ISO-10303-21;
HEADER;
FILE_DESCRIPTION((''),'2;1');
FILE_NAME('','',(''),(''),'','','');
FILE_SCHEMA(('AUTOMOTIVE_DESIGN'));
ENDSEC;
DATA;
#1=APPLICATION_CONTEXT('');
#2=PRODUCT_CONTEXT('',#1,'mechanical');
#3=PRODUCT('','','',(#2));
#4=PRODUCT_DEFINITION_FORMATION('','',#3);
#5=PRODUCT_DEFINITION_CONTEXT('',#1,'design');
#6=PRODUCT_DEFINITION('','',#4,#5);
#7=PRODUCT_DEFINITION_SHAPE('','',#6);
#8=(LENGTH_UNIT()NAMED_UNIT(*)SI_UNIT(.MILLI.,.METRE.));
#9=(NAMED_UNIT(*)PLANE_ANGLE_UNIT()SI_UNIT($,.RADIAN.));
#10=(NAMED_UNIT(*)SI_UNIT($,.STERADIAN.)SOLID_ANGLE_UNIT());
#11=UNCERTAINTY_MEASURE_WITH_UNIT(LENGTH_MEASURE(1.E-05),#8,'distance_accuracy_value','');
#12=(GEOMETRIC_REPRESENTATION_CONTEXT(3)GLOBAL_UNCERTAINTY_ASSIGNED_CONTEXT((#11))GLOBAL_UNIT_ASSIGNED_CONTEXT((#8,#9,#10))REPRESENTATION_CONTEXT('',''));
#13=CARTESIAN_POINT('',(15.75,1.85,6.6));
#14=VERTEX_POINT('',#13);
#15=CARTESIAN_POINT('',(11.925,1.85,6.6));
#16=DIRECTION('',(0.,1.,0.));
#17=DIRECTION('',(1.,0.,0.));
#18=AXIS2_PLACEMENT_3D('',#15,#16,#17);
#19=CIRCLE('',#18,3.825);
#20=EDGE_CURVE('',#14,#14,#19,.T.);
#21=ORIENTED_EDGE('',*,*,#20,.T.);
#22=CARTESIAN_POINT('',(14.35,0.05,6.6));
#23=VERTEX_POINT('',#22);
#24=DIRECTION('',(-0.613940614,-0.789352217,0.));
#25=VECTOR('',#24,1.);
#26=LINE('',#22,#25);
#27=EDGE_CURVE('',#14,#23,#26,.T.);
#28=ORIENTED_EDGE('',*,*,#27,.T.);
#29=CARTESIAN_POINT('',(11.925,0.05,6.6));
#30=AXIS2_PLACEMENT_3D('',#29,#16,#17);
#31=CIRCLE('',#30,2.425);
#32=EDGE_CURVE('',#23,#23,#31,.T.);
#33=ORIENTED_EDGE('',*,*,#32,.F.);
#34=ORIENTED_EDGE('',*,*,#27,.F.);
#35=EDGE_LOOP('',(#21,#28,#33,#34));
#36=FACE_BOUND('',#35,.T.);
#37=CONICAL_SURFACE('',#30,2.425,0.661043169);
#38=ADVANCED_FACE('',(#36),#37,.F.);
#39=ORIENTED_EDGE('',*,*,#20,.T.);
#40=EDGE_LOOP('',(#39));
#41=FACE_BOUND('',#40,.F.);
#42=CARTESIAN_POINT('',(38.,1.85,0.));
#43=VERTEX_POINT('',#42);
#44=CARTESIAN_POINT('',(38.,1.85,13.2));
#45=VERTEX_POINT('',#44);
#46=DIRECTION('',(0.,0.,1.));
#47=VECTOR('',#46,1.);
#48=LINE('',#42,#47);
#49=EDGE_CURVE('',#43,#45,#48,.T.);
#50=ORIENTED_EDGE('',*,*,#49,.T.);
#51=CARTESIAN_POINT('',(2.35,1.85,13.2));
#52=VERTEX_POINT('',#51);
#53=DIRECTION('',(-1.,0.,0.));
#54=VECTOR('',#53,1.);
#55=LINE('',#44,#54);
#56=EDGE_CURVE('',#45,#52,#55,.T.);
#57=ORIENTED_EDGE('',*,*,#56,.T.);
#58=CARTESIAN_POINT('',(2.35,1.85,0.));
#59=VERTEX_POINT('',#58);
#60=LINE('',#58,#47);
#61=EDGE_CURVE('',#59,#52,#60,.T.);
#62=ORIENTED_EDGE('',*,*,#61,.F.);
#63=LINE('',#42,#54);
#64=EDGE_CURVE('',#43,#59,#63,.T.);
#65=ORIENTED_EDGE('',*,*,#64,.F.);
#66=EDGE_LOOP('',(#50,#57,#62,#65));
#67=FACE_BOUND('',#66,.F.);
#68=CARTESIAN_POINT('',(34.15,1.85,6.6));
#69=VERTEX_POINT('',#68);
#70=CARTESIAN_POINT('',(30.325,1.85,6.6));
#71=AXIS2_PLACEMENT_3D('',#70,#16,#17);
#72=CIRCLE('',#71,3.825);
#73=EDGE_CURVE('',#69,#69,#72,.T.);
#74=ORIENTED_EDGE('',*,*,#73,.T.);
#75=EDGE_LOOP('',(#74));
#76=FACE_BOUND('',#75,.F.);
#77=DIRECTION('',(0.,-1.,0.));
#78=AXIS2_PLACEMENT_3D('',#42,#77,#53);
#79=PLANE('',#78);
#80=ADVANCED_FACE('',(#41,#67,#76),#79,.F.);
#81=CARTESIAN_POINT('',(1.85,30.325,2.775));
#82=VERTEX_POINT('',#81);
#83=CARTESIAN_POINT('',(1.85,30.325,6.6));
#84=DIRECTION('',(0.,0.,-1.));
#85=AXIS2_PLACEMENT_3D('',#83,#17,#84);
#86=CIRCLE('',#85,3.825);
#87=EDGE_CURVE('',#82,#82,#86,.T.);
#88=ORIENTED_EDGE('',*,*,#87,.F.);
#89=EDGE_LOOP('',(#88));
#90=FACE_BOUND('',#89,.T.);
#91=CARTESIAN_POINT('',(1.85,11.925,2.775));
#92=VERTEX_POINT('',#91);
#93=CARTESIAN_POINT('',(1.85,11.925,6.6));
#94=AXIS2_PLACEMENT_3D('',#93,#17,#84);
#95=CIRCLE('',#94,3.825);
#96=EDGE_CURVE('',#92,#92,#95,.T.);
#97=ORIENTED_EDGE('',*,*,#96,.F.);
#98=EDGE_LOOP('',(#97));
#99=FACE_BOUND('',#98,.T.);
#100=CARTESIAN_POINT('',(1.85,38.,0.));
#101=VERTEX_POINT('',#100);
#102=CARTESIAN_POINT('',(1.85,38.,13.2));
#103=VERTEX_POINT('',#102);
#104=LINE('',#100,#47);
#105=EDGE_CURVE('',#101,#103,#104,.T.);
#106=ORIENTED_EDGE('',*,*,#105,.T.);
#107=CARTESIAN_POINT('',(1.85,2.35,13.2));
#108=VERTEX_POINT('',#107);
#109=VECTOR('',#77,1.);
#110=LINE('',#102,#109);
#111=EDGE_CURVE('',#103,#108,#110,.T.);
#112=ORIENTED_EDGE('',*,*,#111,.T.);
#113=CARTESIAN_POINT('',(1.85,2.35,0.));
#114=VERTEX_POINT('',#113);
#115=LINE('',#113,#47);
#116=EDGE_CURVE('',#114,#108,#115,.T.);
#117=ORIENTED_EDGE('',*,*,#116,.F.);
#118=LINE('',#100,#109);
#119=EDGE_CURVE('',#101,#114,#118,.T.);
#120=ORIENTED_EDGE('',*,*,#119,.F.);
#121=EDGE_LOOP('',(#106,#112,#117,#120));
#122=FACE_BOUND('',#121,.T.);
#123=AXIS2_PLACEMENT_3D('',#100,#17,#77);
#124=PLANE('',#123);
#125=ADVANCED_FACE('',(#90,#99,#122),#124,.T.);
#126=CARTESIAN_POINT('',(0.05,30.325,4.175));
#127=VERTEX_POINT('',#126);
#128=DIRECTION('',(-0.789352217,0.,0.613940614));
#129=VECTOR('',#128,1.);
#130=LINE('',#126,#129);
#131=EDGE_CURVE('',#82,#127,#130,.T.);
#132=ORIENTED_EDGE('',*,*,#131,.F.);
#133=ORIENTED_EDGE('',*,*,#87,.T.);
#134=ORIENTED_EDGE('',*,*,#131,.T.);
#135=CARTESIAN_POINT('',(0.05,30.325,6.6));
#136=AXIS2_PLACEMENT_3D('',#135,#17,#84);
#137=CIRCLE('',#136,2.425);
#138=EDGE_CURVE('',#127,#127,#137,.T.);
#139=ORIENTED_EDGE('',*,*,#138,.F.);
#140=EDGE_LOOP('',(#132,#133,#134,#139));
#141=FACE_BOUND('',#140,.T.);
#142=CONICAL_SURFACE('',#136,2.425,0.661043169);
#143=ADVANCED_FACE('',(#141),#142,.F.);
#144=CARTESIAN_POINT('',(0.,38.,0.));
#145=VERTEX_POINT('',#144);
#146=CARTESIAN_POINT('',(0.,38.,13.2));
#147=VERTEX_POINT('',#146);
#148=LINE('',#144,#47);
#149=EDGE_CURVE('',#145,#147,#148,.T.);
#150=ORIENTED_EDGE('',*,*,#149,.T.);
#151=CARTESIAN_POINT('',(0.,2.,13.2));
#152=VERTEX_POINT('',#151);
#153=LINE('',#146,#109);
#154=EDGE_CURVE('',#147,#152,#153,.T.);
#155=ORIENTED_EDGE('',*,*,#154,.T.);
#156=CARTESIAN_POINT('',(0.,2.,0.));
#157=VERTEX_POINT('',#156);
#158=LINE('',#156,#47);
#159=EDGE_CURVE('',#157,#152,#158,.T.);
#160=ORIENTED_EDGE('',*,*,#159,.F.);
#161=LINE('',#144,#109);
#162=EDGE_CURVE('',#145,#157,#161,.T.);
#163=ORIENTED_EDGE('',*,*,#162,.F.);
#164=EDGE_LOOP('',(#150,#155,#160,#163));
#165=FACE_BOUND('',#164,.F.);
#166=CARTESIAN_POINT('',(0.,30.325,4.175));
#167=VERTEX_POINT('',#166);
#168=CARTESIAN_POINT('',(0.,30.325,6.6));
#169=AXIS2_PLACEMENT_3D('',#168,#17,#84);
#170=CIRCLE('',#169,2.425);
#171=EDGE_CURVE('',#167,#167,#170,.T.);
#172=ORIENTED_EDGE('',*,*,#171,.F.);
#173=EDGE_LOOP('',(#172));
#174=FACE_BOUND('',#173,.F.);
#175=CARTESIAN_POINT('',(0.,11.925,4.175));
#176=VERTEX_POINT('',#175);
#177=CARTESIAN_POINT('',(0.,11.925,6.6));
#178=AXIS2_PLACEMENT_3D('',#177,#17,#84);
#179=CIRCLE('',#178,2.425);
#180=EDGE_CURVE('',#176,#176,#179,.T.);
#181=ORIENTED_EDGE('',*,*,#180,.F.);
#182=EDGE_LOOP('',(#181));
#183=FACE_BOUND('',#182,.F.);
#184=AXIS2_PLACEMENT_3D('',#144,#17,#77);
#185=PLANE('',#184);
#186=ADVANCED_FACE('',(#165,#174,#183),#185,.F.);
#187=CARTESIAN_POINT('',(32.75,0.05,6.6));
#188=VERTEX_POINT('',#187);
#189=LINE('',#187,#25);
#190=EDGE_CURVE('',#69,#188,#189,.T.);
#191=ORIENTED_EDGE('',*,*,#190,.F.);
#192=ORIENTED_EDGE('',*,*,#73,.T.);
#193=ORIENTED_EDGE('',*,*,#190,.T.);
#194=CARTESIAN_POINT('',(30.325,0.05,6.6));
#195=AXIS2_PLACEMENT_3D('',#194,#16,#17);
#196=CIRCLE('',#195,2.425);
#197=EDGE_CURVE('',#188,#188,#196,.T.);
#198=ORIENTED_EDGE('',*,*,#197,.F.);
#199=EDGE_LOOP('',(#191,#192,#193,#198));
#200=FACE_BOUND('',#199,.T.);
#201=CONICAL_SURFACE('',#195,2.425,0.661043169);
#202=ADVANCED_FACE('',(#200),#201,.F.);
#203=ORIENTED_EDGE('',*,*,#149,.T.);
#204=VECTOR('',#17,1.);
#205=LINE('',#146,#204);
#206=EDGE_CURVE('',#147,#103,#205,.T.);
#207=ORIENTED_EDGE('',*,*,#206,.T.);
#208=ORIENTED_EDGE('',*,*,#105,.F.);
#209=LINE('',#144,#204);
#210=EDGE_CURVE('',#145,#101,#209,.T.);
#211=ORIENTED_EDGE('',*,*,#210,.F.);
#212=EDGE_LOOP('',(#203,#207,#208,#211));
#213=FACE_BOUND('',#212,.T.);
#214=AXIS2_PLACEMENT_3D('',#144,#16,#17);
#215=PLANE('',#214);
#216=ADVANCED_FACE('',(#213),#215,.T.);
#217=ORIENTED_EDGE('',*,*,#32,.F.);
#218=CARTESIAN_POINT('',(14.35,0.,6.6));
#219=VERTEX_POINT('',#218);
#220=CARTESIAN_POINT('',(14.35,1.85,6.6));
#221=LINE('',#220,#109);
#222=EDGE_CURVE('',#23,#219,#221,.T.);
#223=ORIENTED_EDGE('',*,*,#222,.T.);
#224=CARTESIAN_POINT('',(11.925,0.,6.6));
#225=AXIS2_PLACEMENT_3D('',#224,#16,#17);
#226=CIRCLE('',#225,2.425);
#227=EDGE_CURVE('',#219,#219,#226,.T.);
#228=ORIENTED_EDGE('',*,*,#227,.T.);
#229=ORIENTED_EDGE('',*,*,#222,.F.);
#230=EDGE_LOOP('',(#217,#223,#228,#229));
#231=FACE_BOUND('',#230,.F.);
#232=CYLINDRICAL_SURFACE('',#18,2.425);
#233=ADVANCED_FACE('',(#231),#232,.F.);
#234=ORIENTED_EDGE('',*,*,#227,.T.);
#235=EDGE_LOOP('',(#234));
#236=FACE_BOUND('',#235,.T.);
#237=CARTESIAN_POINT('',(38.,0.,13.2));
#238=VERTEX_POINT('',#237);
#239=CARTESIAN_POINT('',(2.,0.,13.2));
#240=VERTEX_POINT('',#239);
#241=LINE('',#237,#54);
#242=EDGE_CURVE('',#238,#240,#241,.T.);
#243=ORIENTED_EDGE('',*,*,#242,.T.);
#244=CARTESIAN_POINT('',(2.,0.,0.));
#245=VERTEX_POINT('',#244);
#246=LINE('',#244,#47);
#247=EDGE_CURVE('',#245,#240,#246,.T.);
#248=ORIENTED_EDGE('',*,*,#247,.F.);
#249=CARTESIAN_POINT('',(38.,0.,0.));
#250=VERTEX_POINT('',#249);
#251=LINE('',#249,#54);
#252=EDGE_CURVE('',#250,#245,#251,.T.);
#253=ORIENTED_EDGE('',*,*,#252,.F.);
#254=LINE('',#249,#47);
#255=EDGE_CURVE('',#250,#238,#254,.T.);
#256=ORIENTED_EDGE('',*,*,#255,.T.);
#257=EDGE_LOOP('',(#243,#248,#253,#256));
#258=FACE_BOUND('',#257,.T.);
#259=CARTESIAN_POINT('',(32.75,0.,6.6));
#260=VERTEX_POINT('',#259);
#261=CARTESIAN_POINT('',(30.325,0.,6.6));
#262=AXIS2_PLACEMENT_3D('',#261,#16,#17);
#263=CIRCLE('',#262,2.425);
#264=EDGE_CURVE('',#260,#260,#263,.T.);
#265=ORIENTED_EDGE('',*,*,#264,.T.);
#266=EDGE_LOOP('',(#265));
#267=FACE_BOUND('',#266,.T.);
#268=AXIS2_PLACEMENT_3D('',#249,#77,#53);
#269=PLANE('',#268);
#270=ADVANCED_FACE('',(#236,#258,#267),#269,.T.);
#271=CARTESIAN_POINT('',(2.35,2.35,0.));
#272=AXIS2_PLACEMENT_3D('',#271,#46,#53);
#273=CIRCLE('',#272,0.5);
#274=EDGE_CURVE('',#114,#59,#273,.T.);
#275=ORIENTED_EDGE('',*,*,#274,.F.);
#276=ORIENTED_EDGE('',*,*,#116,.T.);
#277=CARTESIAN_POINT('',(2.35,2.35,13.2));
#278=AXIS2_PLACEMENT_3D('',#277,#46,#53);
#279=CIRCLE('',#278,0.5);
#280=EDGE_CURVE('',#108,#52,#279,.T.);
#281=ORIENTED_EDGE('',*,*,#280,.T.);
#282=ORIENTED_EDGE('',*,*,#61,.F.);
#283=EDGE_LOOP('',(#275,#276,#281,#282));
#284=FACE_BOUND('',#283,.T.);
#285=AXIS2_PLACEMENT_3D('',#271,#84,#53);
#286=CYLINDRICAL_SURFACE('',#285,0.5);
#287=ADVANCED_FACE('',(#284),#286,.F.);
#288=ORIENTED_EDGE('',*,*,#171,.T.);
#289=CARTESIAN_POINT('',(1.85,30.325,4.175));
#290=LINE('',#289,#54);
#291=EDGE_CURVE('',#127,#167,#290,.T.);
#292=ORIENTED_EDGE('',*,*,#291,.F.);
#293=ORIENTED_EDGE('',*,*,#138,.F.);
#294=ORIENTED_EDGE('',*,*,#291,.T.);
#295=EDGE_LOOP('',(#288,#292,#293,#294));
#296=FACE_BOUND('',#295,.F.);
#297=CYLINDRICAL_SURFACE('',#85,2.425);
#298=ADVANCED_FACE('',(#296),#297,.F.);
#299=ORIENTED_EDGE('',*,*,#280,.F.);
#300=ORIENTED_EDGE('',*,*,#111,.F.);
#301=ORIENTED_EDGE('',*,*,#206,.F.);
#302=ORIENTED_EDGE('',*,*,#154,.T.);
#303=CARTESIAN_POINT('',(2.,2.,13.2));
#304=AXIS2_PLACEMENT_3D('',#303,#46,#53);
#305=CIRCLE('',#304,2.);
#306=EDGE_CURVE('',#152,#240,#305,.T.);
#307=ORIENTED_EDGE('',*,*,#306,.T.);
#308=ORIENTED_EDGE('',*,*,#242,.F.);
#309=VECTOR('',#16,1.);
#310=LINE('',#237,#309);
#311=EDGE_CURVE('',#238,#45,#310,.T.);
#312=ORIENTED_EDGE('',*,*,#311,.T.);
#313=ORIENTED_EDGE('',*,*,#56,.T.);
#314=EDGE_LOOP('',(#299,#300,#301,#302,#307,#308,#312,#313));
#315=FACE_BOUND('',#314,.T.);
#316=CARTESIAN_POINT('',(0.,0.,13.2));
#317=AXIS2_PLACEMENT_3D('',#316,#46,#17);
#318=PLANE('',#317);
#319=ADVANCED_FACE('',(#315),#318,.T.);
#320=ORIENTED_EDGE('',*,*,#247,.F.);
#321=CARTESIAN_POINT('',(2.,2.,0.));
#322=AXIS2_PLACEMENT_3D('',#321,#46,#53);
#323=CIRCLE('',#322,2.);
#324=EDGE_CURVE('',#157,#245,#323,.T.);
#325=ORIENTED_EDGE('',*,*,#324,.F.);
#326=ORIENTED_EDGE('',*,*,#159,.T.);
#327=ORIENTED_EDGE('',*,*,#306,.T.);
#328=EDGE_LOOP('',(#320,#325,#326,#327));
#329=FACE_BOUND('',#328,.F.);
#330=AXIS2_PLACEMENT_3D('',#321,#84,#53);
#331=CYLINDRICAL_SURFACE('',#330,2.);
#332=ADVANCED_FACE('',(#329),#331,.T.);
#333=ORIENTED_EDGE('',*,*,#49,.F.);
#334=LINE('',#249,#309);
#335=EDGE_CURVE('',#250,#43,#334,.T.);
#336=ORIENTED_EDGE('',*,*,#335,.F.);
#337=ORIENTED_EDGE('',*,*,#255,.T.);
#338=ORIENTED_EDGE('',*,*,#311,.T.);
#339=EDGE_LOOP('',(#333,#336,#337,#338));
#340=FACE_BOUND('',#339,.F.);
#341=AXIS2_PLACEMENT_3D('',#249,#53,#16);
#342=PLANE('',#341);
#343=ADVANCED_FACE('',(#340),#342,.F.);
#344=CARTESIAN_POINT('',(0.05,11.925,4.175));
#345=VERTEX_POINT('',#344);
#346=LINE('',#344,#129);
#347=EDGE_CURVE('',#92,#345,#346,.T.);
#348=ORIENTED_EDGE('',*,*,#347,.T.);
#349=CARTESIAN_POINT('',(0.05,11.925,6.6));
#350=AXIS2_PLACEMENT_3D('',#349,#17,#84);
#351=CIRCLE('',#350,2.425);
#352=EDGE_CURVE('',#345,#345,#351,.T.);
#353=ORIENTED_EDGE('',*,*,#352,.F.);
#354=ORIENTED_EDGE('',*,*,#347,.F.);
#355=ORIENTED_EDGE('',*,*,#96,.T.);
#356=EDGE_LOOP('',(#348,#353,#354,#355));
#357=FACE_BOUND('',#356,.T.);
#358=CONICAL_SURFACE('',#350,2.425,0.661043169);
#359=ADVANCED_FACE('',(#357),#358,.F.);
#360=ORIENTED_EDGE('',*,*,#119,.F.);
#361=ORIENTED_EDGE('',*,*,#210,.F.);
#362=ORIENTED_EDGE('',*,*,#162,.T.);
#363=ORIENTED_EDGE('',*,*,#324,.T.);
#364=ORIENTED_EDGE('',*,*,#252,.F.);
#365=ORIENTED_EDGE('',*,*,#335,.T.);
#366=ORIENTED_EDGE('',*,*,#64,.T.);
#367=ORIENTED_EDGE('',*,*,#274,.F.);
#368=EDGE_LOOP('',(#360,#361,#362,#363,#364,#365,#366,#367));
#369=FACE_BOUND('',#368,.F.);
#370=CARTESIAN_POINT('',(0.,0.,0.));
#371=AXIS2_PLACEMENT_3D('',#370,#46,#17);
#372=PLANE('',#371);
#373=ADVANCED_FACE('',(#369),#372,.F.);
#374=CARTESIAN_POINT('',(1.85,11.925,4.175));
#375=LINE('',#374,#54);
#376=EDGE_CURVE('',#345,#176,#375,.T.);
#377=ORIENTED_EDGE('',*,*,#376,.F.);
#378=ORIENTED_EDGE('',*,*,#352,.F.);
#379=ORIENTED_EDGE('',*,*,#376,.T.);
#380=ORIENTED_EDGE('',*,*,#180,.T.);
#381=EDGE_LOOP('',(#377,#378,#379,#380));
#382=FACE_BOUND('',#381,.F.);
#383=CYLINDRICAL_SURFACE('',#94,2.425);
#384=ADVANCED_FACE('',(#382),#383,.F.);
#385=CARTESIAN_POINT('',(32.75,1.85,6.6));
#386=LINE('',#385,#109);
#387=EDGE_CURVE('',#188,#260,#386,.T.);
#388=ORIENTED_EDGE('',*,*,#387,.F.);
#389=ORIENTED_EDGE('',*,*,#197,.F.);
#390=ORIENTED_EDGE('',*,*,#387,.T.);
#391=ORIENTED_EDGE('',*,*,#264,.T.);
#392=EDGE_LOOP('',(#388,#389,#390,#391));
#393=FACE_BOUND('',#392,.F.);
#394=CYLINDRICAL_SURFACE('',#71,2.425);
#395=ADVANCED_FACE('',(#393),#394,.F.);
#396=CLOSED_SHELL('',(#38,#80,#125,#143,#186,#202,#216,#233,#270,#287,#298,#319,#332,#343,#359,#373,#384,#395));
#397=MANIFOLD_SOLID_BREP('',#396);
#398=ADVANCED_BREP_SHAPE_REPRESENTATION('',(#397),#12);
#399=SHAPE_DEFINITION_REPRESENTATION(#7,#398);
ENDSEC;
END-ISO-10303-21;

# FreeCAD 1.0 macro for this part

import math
import FreeCAD as App
import Part
import Sketcher

V = App.Vector


def edges_at(feature, points):
    """Names of the edges that pass closest to the given points."""
    edges = feature.Shape.Edges
    near = lambda p: min(range(len(edges)), key=lambda i: edges[i].distToShape(Part.Vertex(*p))[0])
    return sorted({f"Edge{near(p) + 1}" for p in points})

doc = App.newDocument("Part")
body = doc.addObject("PartDesign::Body", "Body")

sketch1 = body.newObject("Sketcher::SketchObject", "Sketch")
sketch1.AttachmentSupport = (doc.getObject("XY_Plane"), [""])
sketch1.MapMode = "FlatFace"
sketch1.addGeometry([
    Part.LineSegment(V(1.9, 38, 0), V(0, 38, 0)),
    Part.LineSegment(V(0, 38, 0), V(0, 2, 0)),
    Part.ArcOfCircle(Part.Circle(V(2, 2, 0), V(0, 0, 1), 2), math.radians(180), math.radians(270)),
    Part.LineSegment(V(2, 0, 0), V(38, 0, 0)),
    Part.LineSegment(V(38, 0, 0), V(38, 1.9, 0)),
    Part.LineSegment(V(38, 1.9, 0), V(2.4, 1.9, 0)),
    Part.ArcOfCircle(Part.Circle(V(2.4, 2.4, 0), V(0, 0, 1), 0.5), math.radians(180), math.radians(270)),
    Part.LineSegment(V(1.9, 2.4, 0), V(1.9, 38, 0)),
], False)
sketch1.addConstraint([
    Sketcher.Constraint("Coincident", 0, 2, 1, 1),
    Sketcher.Constraint("Tangent", 1, 2, 2, 1),
    Sketcher.Constraint("Tangent", 2, 2, 3, 1),
    Sketcher.Constraint("Coincident", 3, 2, 4, 1),
    Sketcher.Constraint("Coincident", 4, 2, 5, 1),
    Sketcher.Constraint("Tangent", 5, 2, 6, 2),
    Sketcher.Constraint("Tangent", 6, 1, 7, 1),
    Sketcher.Constraint("Coincident", 7, 2, 0, 1),
    Sketcher.Constraint("Horizontal", 0),
    Sketcher.Constraint("Vertical", 1),
    Sketcher.Constraint("Horizontal", 3),
    Sketcher.Constraint("Vertical", 4),
    Sketcher.Constraint("Horizontal", 5),
    Sketcher.Constraint("Vertical", 7),
    Sketcher.Constraint("PointOnObject", 0, 2, -2),
    Sketcher.Constraint("PointOnObject", 2, 2, -1),
    Sketcher.Constraint("Equal", 3, 1),
    Sketcher.Constraint("Equal", 0, 4),
    Sketcher.Constraint("Radius", 2, 2.0),
    Sketcher.Constraint("Radius", 6, 0.5),
    Sketcher.Constraint("DistanceY", -1, 1, 0, 2, 38.0),
    Sketcher.Constraint("DistanceX", 0, 2, 0, 1, 1.85),
])
pad1 = body.newObject("PartDesign::Pad", "Pad")
pad1.Profile = sketch1
pad1.Length = 13.2

sketch2 = body.newObject("Sketcher::SketchObject", "Sketch001")
sketch2.AttachmentSupport = (doc.getObject("YZ_Plane"), [""])
sketch2.MapMode = "FlatFace"
sketch2.AttachmentOffset = App.Placement(V(0, 0, 1.85), App.Rotation())
sketch2.addGeometry([
    Part.Circle(V(30.3, 6.6, 0), V(0, 0, 1), 2.4),
    Part.Circle(V(11.9, 6.6, 0), V(0, 0, 1), 2.4),
], False)
sketch2.addConstraint([
    Sketcher.Constraint("Equal", 0, 1),
    Sketcher.Constraint("Horizontal", 0, 3, 1, 3),
    Sketcher.Constraint("Diameter", 0, 4.85),
    Sketcher.Constraint("DistanceY", -1, 1, 0, 3, 6.6),
    Sketcher.Constraint("DistanceX", 1, 3, 0, 3, 18.4),
    Sketcher.Constraint("DistanceX", -1, 1, 0, 3, 30.325),
])
pocket1 = body.newObject("PartDesign::Pocket", "Pocket")
pocket1.Profile = sketch2
pocket1.Length = 13.2

sketch3 = body.newObject("Sketcher::SketchObject", "Sketch002")
sketch3.AttachmentSupport = (doc.getObject("XZ_Plane"), [""])
sketch3.MapMode = "FlatFace"
sketch3.AttachmentOffset = App.Placement(V(0, 0, -1.85), App.Rotation())
sketch3.addGeometry([
    Part.Circle(V(30.3, 6.6, 0), V(0, 0, 1), 2.4),
    Part.Circle(V(11.9, 6.6, 0), V(0, 0, 1), 2.4),
], False)
sketch3.addConstraint([
    Sketcher.Constraint("Equal", 0, 1),
    Sketcher.Constraint("Horizontal", 0, 3, 1, 3),
    Sketcher.Constraint("Diameter", 0, 4.85),
    Sketcher.Constraint("DistanceY", -1, 1, 0, 3, 6.6),
    Sketcher.Constraint("DistanceX", 1, 3, 0, 3, 18.4),
    Sketcher.Constraint("DistanceX", -1, 1, 0, 3, 30.325),
])
pocket2 = body.newObject("PartDesign::Pocket", "Pocket001")
pocket2.Profile = sketch3
pocket2.Length = 13.2
pocket2.Reversed = True
doc.recompute()

chamfer = body.newObject("PartDesign::Chamfer", "Chamfer")
chamfer.Base = (pocket2, edges_at(pocket2, [(1.85, 30.325, 9.025)]))
chamfer.ChamferType = "Two distances"
chamfer.Size = 1.4
chamfer.Size2 = 1.8
doc.recompute()

chamfer2 = body.newObject("PartDesign::Chamfer", "Chamfer001")
chamfer2.Base = (chamfer, edges_at(chamfer, [(9.5, 1.85, 6.6)]))
chamfer2.ChamferType = "Two distances"
chamfer2.Size = 1.4
chamfer2.Size2 = 1.8
doc.recompute()

chamfer3 = body.newObject("PartDesign::Chamfer", "Chamfer002")
chamfer3.Base = (chamfer2, edges_at(chamfer2, [(1.85, 11.925, 9.025)]))
chamfer3.ChamferType = "Two distances"
chamfer3.Size = 1.4
chamfer3.Size2 = 1.8
doc.recompute()

chamfer4 = body.newObject("PartDesign::Chamfer", "Chamfer003")
chamfer4.Base = (chamfer3, edges_at(chamfer3, [(27.9, 1.85, 6.6)]))
chamfer4.ChamferType = "Two distances"
chamfer4.Size = 1.4
chamfer4.Size2 = 1.8

doc.recompute()
